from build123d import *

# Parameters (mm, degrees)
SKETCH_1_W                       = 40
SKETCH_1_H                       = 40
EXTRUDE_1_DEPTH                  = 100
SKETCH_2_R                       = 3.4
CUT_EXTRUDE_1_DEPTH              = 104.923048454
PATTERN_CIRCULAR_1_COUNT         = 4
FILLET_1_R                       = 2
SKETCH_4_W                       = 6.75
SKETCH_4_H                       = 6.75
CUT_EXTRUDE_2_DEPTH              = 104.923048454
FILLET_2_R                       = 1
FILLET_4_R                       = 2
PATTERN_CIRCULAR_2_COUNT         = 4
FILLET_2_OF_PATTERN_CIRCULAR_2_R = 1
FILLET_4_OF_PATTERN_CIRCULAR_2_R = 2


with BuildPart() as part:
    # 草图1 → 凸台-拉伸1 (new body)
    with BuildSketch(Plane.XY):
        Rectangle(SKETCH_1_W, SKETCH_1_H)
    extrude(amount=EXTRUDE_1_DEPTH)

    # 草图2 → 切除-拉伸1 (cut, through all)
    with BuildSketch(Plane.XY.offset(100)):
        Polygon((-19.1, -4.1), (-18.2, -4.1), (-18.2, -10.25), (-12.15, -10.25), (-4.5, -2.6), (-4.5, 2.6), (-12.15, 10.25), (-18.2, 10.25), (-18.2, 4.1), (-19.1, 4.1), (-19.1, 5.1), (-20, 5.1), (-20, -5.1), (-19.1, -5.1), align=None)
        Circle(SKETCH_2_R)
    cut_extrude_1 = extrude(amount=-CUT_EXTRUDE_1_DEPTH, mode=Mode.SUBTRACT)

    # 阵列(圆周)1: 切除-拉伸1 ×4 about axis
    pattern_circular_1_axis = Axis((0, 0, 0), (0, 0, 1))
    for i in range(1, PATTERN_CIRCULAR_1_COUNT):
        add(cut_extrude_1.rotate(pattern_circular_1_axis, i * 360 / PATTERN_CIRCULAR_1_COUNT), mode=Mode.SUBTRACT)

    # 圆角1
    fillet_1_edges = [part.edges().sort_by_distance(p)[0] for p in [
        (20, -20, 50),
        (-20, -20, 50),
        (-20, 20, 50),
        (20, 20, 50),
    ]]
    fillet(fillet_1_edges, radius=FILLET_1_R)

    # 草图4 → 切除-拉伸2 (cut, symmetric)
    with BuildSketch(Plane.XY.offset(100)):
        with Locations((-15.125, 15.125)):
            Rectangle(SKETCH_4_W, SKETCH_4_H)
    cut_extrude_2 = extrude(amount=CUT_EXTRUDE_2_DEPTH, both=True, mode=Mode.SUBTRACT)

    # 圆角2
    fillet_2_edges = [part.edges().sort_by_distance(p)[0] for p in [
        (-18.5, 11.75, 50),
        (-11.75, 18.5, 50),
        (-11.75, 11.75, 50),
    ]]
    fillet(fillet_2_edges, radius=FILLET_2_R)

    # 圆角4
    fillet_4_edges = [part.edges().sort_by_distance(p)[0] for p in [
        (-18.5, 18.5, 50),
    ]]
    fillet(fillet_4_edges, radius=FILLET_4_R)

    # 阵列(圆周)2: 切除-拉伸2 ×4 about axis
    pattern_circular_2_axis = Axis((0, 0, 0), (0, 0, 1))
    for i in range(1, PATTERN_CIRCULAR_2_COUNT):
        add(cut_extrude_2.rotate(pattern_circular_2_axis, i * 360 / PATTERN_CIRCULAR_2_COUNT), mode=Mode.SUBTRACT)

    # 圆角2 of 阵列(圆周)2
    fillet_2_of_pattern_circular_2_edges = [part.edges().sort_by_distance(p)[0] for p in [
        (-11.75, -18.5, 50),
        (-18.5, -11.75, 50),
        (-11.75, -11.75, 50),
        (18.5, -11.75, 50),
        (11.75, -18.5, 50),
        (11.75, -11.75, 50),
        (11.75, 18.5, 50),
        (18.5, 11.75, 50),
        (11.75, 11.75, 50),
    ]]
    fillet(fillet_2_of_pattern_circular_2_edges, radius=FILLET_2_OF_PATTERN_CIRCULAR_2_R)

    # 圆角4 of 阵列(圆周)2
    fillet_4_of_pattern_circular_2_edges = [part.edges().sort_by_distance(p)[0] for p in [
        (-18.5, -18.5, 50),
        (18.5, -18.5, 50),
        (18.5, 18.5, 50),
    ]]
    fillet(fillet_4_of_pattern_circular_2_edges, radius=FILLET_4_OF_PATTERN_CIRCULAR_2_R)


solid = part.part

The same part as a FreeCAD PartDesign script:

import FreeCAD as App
import Part
import Sketcher


def edges_at(feature, points):
    """Names of the edges that pass closest to the given points."""
    edges = feature.Shape.Edges
    near = lambda p: min(range(len(edges)), key=lambda i: edges[i].distToShape(Part.Vertex(*p))[0])
    return sorted({f"Edge{near(p) + 1}" for p in points})

doc = App.newDocument("Part")
body = doc.addObject("PartDesign::Body", "Body")

sketch1 = body.newObject("Sketcher::SketchObject", "Sketch")
sketch1.AttachmentSupport = (doc.getObject("XY_Plane"), [""])
sketch1.MapMode = "FlatFace"
sketch1.addGeometry(Part.LineSegment(App.Vector(-20, 20, 0), App.Vector(-20, -20, 0)), False)
sketch1.addGeometry(Part.LineSegment(App.Vector(-20, -20, 0), App.Vector(20, -20, 0)), False)
sketch1.addGeometry(Part.LineSegment(App.Vector(20, -20, 0), App.Vector(20, 20, 0)), False)
sketch1.addGeometry(Part.LineSegment(App.Vector(20, 20, 0), App.Vector(-20, 20, 0)), False)
sketch1.addConstraint(Sketcher.Constraint("Coincident", 0, 2, 1, 1))
sketch1.addConstraint(Sketcher.Constraint("Coincident", 1, 2, 2, 1))
sketch1.addConstraint(Sketcher.Constraint("Coincident", 2, 2, 3, 1))
sketch1.addConstraint(Sketcher.Constraint("Coincident", 3, 2, 0, 1))
sketch1.addConstraint(Sketcher.Constraint("Vertical", 0))
sketch1.addConstraint(Sketcher.Constraint("Horizontal", 1))
sketch1.addConstraint(Sketcher.Constraint("Vertical", 2))
sketch1.addConstraint(Sketcher.Constraint("Horizontal", 3))
sketch1.addConstraint(Sketcher.Constraint("Symmetric", 0, 2, 2, 2, -1, 1))
sketch1.addConstraint(Sketcher.Constraint("Equal", 3, 0))
sketch1.addConstraint(Sketcher.Constraint("DistanceX", 1, 1, 1, 2, 40.0))
pad1 = body.newObject("PartDesign::Pad", "Pad")
pad1.Profile = sketch1
pad1.Length = 100

sketch2 = body.newObject("Sketcher::SketchObject", "Sketch001")
sketch2.AttachmentSupport = (doc.getObject("XY_Plane"), [""])
sketch2.MapMode = "FlatFace"
sketch2.AttachmentOffset = App.Placement(App.Vector(0, 0, 100), App.Rotation())
sketch2.addGeometry(Part.LineSegment(App.Vector(-19.1, -4.1, 0), App.Vector(-18.2, -4.1, 0)), False)
sketch2.addGeometry(Part.LineSegment(App.Vector(-18.2, -4.1, 0), App.Vector(-18.2, -10.2, 0)), False)
sketch2.addGeometry(Part.LineSegment(App.Vector(-18.2, -10.2, 0), App.Vector(-12.2, -10.2, 0)), False)
sketch2.addGeometry(Part.LineSegment(App.Vector(-12.2, -10.2, 0), App.Vector(-4.5, -2.6, 0)), False)
sketch2.addGeometry(Part.LineSegment(App.Vector(-4.5, -2.6, 0), App.Vector(-4.5, 2.6, 0)), False)
sketch2.addGeometry(Part.LineSegment(App.Vector(-4.5, 2.6, 0), App.Vector(-12.2, 10.2, 0)), False)
sketch2.addGeometry(Part.LineSegment(App.Vector(-12.2, 10.2, 0), App.Vector(-18.2, 10.2, 0)), False)
sketch2.addGeometry(Part.LineSegment(App.Vector(-18.2, 10.2, 0), App.Vector(-18.2, 4.1, 0)), False)
sketch2.addGeometry(Part.LineSegment(App.Vector(-18.2, 4.1, 0), App.Vector(-19.1, 4.1, 0)), False)
sketch2.addGeometry(Part.LineSegment(App.Vector(-19.1, 4.1, 0), App.Vector(-19.1, 5.1, 0)), False)
sketch2.addGeometry(Part.LineSegment(App.Vector(-19.1, 5.1, 0), App.Vector(-20, 5.1, 0)), False)
sketch2.addGeometry(Part.LineSegment(App.Vector(-20, 5.1, 0), App.Vector(-20, -5.1, 0)), False)
sketch2.addGeometry(Part.LineSegment(App.Vector(-20, -5.1, 0), App.Vector(-19.1, -5.1, 0)), False)
sketch2.addGeometry(Part.LineSegment(App.Vector(-19.1, -5.1, 0), App.Vector(-19.1, -4.1, 0)), False)
sketch2.addGeometry(Part.Circle(App.Vector(0, 0, 0), App.Vector(0, 0, 1), 3.4), False)
sketch2.addConstraint(Sketcher.Constraint("Coincident", 0, 2, 1, 1))
sketch2.addConstraint(Sketcher.Constraint("Coincident", 1, 2, 2, 1))
sketch2.addConstraint(Sketcher.Constraint("Coincident", 2, 2, 3, 1))
sketch2.addConstraint(Sketcher.Constraint("Coincident", 3, 2, 4, 1))
sketch2.addConstraint(Sketcher.Constraint("Coincident", 4, 2, 5, 1))
sketch2.addConstraint(Sketcher.Constraint("Coincident", 5, 2, 6, 1))
sketch2.addConstraint(Sketcher.Constraint("Coincident", 6, 2, 7, 1))
sketch2.addConstraint(Sketcher.Constraint("Coincident", 7, 2, 8, 1))
sketch2.addConstraint(Sketcher.Constraint("Coincident", 8, 2, 9, 1))
sketch2.addConstraint(Sketcher.Constraint("Coincident", 9, 2, 10, 1))
sketch2.addConstraint(Sketcher.Constraint("Coincident", 10, 2, 11, 1))
sketch2.addConstraint(Sketcher.Constraint("Coincident", 11, 2, 12, 1))
sketch2.addConstraint(Sketcher.Constraint("Coincident", 12, 2, 13, 1))
sketch2.addConstraint(Sketcher.Constraint("Coincident", 13, 2, 0, 1))
sketch2.addConstraint(Sketcher.Constraint("Horizontal", 0))
sketch2.addConstraint(Sketcher.Constraint("Vertical", 1))
sketch2.addConstraint(Sketcher.Constraint("Horizontal", 2))
sketch2.addConstraint(Sketcher.Constraint("Vertical", 4))
sketch2.addConstraint(Sketcher.Constraint("Horizontal", 6))
sketch2.addConstraint(Sketcher.Constraint("Vertical", 7))
sketch2.addConstraint(Sketcher.Constraint("Horizontal", 8))
sketch2.addConstraint(Sketcher.Constraint("Vertical", 9))
sketch2.addConstraint(Sketcher.Constraint("Horizontal", 10))
sketch2.addConstraint(Sketcher.Constraint("Vertical", 11))
sketch2.addConstraint(Sketcher.Constraint("Horizontal", 12))
sketch2.addConstraint(Sketcher.Constraint("Vertical", 13))
sketch2.addConstraint(Sketcher.Constraint("Coincident", 14, 3, -1, 1))
sketch2.addConstraint(Sketcher.Constraint("Symmetric", 2, 2, 5, 2, -1))
sketch2.addConstraint(Sketcher.Constraint("Symmetric", 0, 2, 7, 2, -1))
sketch2.addConstraint(Sketcher.Constraint("Symmetric", 9, 2, 12, 2, -1))
sketch2.addConstraint(Sketcher.Constraint("Perpendicular", 3, 5))
sketch2.addConstraint(Sketcher.Constraint("Equal", 8, 10))
sketch2.addConstraint(Sketcher.Constraint("Equal", 3, 5))
sketch2.addConstraint(Sketcher.Constraint("Diameter", 14, 6.8))
sketch2.addConstraint(Sketcher.Constraint("DistanceY", 9, 1, 9, 2, 1.0))
sketch2.addConstraint(Sketcher.Constraint("DistanceX", 0, 1, 0, 2, 0.9))
sketch2.addConstraint(Sketcher.Constraint("DistanceY", 4, 1, 4, 2, 5.2))
sketch2.addConstraint(Sketcher.Constraint("DistanceY", 11, 2, 11, 1, 10.2))
sketch2.addConstraint(Sketcher.Constraint("DistanceX", 10, 2, -1, 1, 20.0))
sketch2.addConstraint(Sketcher.Constraint("DistanceX", 2, 1, 2, 2, 6.05))
sketch2.addConstraint(Sketcher.Constraint("DistanceY", 1, 2, 1, 1, 6.15))
pocket1 = body.newObject("PartDesign::Pocket", "Pocket")
pocket1.Profile = sketch2
pocket1.Type = "ThroughAll"
doc.recompute()

polarpattern = body.newObject("PartDesign::PolarPattern", "PolarPattern")
polarpattern.Originals = [pocket1]
polarpattern.Axis = (doc.getObject("Z_Axis"), [""])
polarpattern.Angle = 360
polarpattern.Occurrences = 4
body.Tip = polarpattern
doc.recompute()

fillet = body.newObject("PartDesign::Fillet", "Fillet")
fillet.Base = (polarpattern, edges_at(polarpattern, [
    (20, -20, 50),
    (-20, -20, 50),
    (-20, 20, 50),
    (20, 20, 50),
]))
fillet.Radius = 2

sketch3 = body.newObject("Sketcher::SketchObject", "Sketch002")
sketch3.AttachmentSupport = (doc.getObject("XY_Plane"), [""])
sketch3.MapMode = "FlatFace"
sketch3.AttachmentOffset = App.Placement(App.Vector(0, 0, 100), App.Rotation())
sketch3.addGeometry(Part.LineSegment(App.Vector(-18, 18, 0), App.Vector(-18, 12, 0)), False)
sketch3.addGeometry(Part.LineSegment(App.Vector(-18, 12, 0), App.Vector(-12, 12, 0)), False)
sketch3.addGeometry(Part.LineSegment(App.Vector(-12, 12, 0), App.Vector(-12, 18, 0)), False)
sketch3.addGeometry(Part.LineSegment(App.Vector(-12, 18, 0), App.Vector(-18, 18, 0)), False)
sketch3.addConstraint(Sketcher.Constraint("Coincident", 0, 2, 1, 1))
sketch3.addConstraint(Sketcher.Constraint("Coincident", 1, 2, 2, 1))
sketch3.addConstraint(Sketcher.Constraint("Coincident", 2, 2, 3, 1))
sketch3.addConstraint(Sketcher.Constraint("Coincident", 3, 2, 0, 1))
sketch3.addConstraint(Sketcher.Constraint("Vertical", 0))
sketch3.addConstraint(Sketcher.Constraint("Horizontal", 1))
sketch3.addConstraint(Sketcher.Constraint("Vertical", 2))
sketch3.addConstraint(Sketcher.Constraint("Horizontal", 3))
sketch3.addConstraint(Sketcher.Constraint("Equal", 3, 0))
sketch3.addConstraint(Sketcher.Constraint("DistanceX", 1, 1, 1, 2, 6.75))
sketch3.addConstraint(Sketcher.Constraint("DistanceX", 0, 2, -1, 1, 18.5))
sketch3.addConstraint(Sketcher.Constraint("DistanceY", -1, 1, 2, 2, 18.5))
pocket2 = body.newObject("PartDesign::Pocket", "Pocket001")
pocket2.Profile = sketch3
pocket2.Length = 209.846097
pocket2.Midplane = True
doc.recompute()

fillet2 = body.newObject("PartDesign::Fillet", "Fillet001")
fillet2.Base = (pocket2, edges_at(pocket2, [(-18.5, 11.75, 50), (-11.75, 18.5, 50), (-11.75, 11.75, 50)]))
fillet2.Radius = 1
doc.recompute()

fillet3 = body.newObject("PartDesign::Fillet", "Fillet002")
fillet3.Base = (fillet2, edges_at(fillet2, [(-18.5, 18.5, 50)]))
fillet3.Radius = 2
doc.recompute()

polarpattern2 = body.newObject("PartDesign::PolarPattern", "PolarPattern001")
polarpattern2.Originals = [pocket2]
polarpattern2.Axis = (doc.getObject("Z_Axis"), [""])
polarpattern2.Angle = 360
polarpattern2.Occurrences = 4
body.Tip = polarpattern2
doc.recompute()

fillet4 = body.newObject("PartDesign::Fillet", "Fillet003")
fillet4.Base = (polarpattern2, edges_at(polarpattern2, [
    (-11.75, -18.5, 50),
    (-18.5, -11.75, 50),
    (-11.75, -11.75, 50),
    (18.5, -11.75, 50),
    (11.75, -18.5, 50),
    (11.75, -11.75, 50),
    (11.75, 18.5, 50),
    (18.5, 11.75, 50),
    (11.75, 11.75, 50),
]))
fillet4.Radius = 1
doc.recompute()

fillet5 = body.newObject("PartDesign::Fillet", "Fillet004")
fillet5.Base = (fillet4, edges_at(fillet4, [(-18.5, -18.5, 50), (18.5, -18.5, 50), (18.5, 18.5, 50)]))
fillet5.Radius = 2

doc.recompute()
